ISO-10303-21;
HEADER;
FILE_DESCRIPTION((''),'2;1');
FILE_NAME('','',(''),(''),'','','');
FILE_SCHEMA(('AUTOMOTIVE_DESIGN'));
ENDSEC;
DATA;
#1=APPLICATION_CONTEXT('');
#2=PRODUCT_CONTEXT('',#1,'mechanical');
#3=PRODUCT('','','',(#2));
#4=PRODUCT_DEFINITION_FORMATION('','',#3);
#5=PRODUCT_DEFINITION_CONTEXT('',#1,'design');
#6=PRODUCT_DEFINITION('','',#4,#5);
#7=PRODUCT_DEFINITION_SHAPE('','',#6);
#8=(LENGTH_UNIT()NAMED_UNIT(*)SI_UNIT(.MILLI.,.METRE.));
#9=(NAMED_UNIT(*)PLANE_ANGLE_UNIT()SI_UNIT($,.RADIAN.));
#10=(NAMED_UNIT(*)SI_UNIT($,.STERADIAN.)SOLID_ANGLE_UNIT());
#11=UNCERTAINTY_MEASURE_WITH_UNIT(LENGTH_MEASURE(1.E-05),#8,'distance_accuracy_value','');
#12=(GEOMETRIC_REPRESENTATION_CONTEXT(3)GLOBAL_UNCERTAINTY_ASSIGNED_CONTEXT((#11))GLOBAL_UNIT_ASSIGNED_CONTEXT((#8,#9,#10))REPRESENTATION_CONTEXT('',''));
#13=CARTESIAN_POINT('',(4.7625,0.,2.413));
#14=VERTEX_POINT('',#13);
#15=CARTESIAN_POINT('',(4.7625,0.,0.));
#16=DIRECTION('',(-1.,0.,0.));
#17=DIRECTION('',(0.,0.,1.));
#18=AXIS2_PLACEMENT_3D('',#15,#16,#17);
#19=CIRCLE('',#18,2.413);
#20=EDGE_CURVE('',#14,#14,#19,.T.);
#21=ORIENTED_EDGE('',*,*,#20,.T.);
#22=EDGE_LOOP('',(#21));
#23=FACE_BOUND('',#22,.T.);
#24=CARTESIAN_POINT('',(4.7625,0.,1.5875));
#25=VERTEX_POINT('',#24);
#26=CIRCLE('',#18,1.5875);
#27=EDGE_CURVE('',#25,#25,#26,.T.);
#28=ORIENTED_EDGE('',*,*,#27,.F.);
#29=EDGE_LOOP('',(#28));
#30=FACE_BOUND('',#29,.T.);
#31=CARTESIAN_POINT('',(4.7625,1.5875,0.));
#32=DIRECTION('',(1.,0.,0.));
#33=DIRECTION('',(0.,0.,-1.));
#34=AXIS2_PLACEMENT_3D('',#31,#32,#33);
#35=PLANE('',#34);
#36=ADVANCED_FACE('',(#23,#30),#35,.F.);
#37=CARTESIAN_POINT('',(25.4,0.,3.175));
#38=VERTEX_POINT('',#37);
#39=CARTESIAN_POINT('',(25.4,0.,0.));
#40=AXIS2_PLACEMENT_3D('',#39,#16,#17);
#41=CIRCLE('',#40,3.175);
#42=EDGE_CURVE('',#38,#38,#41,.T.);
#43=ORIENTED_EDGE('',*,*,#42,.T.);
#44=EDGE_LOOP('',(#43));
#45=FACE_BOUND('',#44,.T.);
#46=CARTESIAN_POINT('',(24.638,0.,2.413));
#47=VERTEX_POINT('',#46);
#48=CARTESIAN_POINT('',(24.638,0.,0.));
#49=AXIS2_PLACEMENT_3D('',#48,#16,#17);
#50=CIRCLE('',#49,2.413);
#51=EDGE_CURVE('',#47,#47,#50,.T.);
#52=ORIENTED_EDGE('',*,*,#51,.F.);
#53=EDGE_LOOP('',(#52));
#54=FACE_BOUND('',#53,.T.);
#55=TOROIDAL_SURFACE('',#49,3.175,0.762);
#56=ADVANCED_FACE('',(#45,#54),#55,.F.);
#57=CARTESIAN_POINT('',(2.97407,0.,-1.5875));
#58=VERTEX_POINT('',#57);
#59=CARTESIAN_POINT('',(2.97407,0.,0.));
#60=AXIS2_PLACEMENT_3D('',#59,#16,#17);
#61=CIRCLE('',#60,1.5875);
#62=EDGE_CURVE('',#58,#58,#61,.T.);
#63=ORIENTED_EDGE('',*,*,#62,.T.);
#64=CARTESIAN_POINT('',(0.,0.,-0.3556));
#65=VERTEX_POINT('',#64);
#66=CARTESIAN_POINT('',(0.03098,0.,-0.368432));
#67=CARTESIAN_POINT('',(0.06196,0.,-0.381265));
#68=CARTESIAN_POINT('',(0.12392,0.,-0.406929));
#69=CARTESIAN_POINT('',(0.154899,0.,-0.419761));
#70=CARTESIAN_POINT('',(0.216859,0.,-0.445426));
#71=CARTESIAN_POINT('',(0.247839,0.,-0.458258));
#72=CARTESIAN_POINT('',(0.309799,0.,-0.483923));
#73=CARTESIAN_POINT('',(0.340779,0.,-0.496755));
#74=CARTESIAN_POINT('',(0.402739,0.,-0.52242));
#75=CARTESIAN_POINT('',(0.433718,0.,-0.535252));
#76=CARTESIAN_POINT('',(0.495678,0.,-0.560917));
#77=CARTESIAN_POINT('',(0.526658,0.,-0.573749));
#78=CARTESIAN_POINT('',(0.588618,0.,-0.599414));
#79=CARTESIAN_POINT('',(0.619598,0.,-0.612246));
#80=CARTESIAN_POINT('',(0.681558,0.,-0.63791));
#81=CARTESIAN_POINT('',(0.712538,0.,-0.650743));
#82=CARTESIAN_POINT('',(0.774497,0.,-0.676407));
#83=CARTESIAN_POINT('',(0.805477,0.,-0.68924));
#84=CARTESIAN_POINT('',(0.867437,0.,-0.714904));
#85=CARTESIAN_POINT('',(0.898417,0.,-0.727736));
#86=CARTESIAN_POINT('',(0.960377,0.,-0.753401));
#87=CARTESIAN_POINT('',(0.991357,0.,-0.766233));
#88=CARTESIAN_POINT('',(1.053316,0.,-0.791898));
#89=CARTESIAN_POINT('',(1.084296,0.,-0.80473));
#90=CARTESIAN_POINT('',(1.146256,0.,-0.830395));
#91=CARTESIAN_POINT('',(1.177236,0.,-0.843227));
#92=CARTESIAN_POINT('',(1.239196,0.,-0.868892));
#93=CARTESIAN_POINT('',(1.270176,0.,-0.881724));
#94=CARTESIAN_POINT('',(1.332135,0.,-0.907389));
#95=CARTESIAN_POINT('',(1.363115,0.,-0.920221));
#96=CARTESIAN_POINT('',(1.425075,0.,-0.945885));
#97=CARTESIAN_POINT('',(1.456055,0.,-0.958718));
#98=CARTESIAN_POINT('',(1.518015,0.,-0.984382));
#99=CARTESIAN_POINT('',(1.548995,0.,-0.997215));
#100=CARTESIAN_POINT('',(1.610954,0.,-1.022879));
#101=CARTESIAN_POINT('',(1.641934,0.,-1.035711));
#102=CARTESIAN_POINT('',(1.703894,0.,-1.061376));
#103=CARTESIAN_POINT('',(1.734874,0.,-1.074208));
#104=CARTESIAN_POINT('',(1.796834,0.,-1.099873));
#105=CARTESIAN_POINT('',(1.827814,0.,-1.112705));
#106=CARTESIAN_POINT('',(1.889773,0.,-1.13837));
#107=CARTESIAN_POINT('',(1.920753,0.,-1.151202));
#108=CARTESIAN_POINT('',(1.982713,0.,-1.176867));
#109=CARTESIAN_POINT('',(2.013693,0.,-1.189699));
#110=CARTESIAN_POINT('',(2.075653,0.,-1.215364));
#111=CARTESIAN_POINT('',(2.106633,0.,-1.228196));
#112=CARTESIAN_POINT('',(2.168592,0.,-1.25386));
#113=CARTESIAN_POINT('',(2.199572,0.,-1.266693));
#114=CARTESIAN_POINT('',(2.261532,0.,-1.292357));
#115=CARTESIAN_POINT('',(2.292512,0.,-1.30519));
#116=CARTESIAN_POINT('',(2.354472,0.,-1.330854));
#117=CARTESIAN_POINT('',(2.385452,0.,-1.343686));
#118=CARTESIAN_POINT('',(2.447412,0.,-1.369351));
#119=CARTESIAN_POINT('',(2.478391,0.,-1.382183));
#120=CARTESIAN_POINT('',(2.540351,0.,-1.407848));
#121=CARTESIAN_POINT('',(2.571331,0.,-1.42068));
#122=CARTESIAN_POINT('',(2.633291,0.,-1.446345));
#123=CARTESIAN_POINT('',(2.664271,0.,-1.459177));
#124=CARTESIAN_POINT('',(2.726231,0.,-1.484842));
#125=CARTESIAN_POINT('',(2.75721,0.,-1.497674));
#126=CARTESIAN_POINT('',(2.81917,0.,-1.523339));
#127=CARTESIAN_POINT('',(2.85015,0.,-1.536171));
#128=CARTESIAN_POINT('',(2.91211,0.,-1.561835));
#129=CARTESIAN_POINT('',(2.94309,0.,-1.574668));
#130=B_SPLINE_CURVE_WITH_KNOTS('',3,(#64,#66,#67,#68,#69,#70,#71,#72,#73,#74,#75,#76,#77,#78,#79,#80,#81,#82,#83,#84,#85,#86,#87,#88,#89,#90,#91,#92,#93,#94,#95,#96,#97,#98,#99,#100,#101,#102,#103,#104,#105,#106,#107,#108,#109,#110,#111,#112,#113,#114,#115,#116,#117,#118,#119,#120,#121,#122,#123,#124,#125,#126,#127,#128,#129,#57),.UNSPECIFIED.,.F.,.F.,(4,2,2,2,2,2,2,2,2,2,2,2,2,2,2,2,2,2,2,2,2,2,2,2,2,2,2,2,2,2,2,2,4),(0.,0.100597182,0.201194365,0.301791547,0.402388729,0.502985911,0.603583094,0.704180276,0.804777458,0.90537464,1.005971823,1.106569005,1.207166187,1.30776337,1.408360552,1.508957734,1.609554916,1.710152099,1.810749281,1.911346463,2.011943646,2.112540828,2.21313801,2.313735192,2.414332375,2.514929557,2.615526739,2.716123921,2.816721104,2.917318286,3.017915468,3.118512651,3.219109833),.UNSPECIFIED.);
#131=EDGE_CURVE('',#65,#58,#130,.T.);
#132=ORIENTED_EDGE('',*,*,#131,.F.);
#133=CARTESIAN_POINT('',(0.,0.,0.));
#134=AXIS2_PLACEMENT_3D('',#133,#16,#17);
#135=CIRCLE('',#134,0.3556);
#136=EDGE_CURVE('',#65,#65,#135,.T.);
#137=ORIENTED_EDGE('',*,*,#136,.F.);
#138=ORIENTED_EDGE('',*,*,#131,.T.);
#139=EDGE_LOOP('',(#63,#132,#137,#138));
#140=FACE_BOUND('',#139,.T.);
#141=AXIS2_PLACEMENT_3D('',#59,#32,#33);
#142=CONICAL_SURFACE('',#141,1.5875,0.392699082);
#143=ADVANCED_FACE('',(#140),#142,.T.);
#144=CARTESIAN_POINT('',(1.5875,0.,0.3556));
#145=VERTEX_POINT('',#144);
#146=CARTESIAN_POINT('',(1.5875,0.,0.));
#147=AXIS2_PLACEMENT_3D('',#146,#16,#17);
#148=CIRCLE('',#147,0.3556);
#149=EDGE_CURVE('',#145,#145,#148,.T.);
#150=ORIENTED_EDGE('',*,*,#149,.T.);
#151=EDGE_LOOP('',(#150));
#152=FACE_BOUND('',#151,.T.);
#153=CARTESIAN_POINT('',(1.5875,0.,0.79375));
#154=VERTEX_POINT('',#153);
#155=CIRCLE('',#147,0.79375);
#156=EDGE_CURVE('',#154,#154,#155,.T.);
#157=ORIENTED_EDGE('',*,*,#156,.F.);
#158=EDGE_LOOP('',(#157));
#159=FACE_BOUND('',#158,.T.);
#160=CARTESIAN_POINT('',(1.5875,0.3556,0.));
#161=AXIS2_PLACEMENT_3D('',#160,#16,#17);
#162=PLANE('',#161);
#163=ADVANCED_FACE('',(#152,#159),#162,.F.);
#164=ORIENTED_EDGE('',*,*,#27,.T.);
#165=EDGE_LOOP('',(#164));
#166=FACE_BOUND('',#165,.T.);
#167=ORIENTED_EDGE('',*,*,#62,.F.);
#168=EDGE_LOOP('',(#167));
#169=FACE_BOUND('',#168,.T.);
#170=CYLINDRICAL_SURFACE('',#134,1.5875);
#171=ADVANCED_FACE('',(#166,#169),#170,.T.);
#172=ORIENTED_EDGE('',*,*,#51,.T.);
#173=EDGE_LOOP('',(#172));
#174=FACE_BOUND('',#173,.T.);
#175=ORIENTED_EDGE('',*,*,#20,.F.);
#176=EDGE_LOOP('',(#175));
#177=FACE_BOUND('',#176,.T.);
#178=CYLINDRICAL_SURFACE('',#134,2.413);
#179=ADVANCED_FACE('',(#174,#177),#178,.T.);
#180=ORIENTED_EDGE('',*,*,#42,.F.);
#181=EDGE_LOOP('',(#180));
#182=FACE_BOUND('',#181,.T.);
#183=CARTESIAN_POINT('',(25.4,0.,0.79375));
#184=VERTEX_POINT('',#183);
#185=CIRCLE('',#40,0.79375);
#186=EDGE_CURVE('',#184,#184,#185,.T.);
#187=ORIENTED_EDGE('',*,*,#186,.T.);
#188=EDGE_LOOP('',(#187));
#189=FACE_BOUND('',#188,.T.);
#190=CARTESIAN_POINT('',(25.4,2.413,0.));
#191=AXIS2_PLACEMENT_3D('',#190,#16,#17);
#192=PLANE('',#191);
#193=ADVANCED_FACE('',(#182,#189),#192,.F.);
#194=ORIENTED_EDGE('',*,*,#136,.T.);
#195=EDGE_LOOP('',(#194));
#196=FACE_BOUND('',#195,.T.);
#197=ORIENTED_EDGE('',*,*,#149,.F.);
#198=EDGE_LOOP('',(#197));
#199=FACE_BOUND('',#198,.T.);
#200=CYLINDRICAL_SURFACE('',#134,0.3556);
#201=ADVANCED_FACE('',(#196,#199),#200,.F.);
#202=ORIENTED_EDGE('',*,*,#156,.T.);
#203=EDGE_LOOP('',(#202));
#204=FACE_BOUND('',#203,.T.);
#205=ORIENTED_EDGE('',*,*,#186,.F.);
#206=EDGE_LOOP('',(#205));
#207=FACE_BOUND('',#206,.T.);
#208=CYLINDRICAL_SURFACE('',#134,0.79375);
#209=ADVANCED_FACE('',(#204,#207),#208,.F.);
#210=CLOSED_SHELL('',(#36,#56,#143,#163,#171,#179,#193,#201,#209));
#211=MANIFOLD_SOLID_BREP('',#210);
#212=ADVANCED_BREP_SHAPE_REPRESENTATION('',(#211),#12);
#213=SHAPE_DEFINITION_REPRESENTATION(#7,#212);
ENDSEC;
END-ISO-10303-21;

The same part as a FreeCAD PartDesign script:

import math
import FreeCAD as App
import Part
import Sketcher
Q = App.Units.Quantity

doc = App.newDocument("Part")
body = doc.addObject("PartDesign::Body", "Body")

# Sketch on XY plane
sketch1 = body.newObject("Sketcher::SketchObject", "Sketch")
sketch1.AttachmentSupport = (doc.getObject("XY_Plane"), [""])
sketch1.MapMode = "FlatFace"
sketch1.addGeometry([
    Part.LineSegment(App.Vector(0, 0.36, 0), App.Vector(1.59, 0.36, 0)),  # 0
    Part.LineSegment(App.Vector(1.59, 0.36, 0), App.Vector(1.59, 0.79, 0)),  # 1
    Part.LineSegment(App.Vector(1.59, 0.79, 0), App.Vector(25.4, 0.79, 0)),  # 2
    Part.LineSegment(App.Vector(25.4, 0.79, 0), App.Vector(25.4, 3.17, 0)),  # 3
    Part.ArcOfCircle(Part.Circle(App.Vector(24.64, 3.18, 0), App.Vector(0, 0, 1), 0.76), math.radians(-90), math.radians(0)),  # 4
    Part.LineSegment(App.Vector(24.64, 2.41, 0), App.Vector(4.76, 2.41, 0)),  # 5
    Part.LineSegment(App.Vector(4.76, 2.41, 0), App.Vector(4.76, 1.59, 0)),  # 6
    Part.LineSegment(App.Vector(4.76, 1.59, 0), App.Vector(2.97, 1.59, 0)),  # 7
    Part.LineSegment(App.Vector(2.97, 1.59, 0), App.Vector(0, 0.36, 0)),  # 8
], False)
sketch1.addConstraint([
    Sketcher.Constraint("Coincident", 0, 2, 1, 1),
    Sketcher.Constraint("Coincident", 1, 2, 2, 1),
    Sketcher.Constraint("Coincident", 2, 2, 3, 1),
    Sketcher.Constraint("Tangent", 3, 2, 4, 2),
    Sketcher.Constraint("Tangent", 4, 1, 5, 1),
    Sketcher.Constraint("Coincident", 5, 2, 6, 1),
    Sketcher.Constraint("Coincident", 6, 2, 7, 1),
    Sketcher.Constraint("Coincident", 7, 2, 8, 1),
    Sketcher.Constraint("Coincident", 8, 2, 0, 1),
    Sketcher.Constraint("Horizontal", 0),
    Sketcher.Constraint("Vertical", 1),
    Sketcher.Constraint("Horizontal", 2),
    Sketcher.Constraint("Vertical", 3),
    Sketcher.Constraint("Horizontal", 5),
    Sketcher.Constraint("Vertical", 6),
    Sketcher.Constraint("Horizontal", 7),
    Sketcher.Constraint("PointOnObject", 8, 2, -2),
    Sketcher.Constraint("Radius", 4, Q("0.03 in")),
    Sketcher.Constraint("DistanceX", -1, 1, 2, 2, Q("1 in")),
    Sketcher.Constraint("Angle", 8, Q("-157.5 deg")),
    Sketcher.Constraint("DistanceX", 0, 1, 0, 2, Q("0.0625 in")),
    Sketcher.Constraint("DistanceY", 3, 1, 3, 2, Q("0.09375 in")),
    Sketcher.Constraint("DistanceX", 5, 2, 5, 1, Q("0.7825 in")),
    Sketcher.Constraint("DistanceY", 6, 2, 6, 1, Q("0.0325 in")),
    Sketcher.Constraint("DistanceY", -1, 1, 4, 3, Q("0.125 in")),
    Sketcher.Constraint("DistanceY", -1, 1, 0, 2, Q("0.014 in")),
])
revolution = body.newObject("PartDesign::Revolution", "Revolution")
revolution.Profile = sketch1
revolution.ReferenceAxis = (sketch1, ["H_Axis"])
revolution.Angle = 360

doc.recompute()
